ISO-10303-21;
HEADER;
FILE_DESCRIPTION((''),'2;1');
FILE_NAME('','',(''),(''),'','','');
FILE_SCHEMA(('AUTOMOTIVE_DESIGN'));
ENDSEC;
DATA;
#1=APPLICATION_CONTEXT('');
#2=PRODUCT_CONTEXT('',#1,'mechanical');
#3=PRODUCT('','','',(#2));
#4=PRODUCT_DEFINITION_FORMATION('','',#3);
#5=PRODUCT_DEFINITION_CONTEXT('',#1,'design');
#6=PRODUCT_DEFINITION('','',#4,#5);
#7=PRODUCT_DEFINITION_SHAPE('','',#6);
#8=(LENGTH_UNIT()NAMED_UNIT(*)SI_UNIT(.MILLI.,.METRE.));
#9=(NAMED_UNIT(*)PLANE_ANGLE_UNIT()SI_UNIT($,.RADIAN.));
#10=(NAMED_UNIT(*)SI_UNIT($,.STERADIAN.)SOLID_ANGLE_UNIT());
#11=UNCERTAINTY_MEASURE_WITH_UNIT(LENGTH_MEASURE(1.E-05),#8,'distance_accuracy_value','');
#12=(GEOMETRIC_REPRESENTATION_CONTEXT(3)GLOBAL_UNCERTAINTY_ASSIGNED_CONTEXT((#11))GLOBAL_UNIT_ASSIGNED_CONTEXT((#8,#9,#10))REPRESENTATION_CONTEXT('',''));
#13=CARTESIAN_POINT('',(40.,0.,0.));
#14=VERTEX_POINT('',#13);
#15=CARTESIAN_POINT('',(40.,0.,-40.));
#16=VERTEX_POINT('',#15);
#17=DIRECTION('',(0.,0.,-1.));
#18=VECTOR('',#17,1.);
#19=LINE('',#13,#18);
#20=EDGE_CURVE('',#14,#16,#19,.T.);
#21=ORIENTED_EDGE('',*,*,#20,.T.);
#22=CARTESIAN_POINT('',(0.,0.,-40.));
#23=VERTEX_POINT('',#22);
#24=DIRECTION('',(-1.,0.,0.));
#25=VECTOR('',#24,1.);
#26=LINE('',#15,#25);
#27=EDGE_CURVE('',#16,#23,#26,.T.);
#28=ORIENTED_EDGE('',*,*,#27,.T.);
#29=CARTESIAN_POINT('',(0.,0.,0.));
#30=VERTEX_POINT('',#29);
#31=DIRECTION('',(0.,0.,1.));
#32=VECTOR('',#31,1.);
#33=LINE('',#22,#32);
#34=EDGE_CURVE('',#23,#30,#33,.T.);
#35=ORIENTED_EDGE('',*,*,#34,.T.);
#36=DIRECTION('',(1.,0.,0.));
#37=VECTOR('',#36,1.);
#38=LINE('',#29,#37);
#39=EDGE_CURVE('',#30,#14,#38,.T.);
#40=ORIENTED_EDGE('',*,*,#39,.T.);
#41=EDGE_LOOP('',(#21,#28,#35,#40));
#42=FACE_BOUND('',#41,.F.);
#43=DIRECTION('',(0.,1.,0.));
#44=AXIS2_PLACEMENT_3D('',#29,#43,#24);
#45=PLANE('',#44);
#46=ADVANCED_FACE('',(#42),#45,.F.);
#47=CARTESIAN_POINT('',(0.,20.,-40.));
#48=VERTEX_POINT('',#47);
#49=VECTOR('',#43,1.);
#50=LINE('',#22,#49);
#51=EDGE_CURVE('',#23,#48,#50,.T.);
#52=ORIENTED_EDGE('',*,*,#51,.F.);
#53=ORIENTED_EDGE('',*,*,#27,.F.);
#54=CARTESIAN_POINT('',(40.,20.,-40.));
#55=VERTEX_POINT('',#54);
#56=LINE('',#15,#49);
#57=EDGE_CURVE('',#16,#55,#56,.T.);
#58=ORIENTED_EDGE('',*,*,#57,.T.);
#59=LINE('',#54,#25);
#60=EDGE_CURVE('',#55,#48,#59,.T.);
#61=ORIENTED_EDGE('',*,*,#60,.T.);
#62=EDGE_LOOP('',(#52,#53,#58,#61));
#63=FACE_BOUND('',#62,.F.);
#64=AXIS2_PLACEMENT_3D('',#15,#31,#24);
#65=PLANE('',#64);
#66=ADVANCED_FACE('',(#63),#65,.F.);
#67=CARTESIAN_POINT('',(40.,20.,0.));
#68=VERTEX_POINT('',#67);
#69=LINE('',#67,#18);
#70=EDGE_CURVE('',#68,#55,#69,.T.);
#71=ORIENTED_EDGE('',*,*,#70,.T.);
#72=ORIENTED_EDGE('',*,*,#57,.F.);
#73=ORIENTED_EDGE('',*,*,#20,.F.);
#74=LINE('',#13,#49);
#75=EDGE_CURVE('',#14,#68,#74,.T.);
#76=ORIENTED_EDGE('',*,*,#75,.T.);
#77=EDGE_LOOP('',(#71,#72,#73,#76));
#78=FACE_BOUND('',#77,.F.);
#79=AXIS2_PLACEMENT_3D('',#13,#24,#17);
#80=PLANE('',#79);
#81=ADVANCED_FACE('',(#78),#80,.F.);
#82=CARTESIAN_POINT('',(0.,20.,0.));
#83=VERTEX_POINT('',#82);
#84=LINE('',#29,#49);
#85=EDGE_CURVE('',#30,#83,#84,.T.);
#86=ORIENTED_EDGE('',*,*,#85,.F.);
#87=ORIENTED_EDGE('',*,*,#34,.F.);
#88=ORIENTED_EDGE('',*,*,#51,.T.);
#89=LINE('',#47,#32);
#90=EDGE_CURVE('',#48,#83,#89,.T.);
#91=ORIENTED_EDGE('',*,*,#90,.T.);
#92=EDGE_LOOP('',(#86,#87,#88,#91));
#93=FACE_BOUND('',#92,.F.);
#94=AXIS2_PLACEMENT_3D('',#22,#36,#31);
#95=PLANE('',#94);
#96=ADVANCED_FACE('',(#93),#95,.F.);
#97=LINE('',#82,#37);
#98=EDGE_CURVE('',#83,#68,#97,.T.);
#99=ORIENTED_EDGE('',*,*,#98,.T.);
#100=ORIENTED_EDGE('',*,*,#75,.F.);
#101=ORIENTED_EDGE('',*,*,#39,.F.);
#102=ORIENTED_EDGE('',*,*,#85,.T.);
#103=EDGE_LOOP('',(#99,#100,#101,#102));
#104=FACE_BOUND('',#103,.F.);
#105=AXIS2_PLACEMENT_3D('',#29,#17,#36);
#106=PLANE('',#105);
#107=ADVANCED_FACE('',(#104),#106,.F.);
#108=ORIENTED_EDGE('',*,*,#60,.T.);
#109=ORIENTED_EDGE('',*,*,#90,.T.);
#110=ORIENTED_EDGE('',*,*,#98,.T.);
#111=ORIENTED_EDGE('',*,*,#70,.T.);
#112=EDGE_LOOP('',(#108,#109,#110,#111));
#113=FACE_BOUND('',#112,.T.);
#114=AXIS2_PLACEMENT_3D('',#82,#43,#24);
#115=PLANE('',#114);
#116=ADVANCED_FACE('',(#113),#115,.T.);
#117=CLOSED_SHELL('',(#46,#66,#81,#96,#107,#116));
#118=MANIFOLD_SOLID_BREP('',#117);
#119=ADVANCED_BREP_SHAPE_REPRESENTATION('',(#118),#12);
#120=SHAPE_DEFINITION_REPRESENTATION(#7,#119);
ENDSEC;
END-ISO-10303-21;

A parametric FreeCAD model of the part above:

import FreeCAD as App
import Part
import Sketcher
Q = App.Units.Quantity


def add_polygon(sketch, points):
    """Adds a closed chain of lines whose ends are joined by coincident constraints."""
    first, n = sketch.GeometryCount, len(points)
    for a, b in zip(points, points[1:] + points[:1]):
        sketch.addGeometry(Part.LineSegment(App.Vector(*a, 0), App.Vector(*b, 0)), False)
    for i in range(n):
        sketch.addConstraint(Sketcher.Constraint("Coincident", first + i, 2, first + (i + 1) % n, 1))

doc = App.newDocument("Part")
body = doc.addObject("PartDesign::Body", "Body")

# Sketch on XZ plane
sketch1 = doc.addObject("Sketcher::SketchObject", "Sketch")
body.addObject(sketch1)
sketch1.AttachmentSupport = (doc.XZ_Plane, [""])
sketch1.MapMode = "FlatFace"
add_polygon(sketch1, [(0, -40), (0, 0), (40, 0), (40, -40)])  # lines 0-3
sketch1.addConstraint(Sketcher.Constraint("Vertical", 0))
sketch1.addConstraint(Sketcher.Constraint("Horizontal", 1))
sketch1.addConstraint(Sketcher.Constraint("Vertical", 2))
sketch1.addConstraint(Sketcher.Constraint("Horizontal", 3))
sketch1.addConstraint(Sketcher.Constraint("Coincident", 0, 2, -1, 1))
sketch1.addConstraint(Sketcher.Constraint("Equal", 3, 0))
sketch1.addConstraint(Sketcher.Constraint("DistanceX", 1, 1, 1, 2, Q("40 mm")))
pad1 = doc.addObject("PartDesign::Pad", "Pad")
body.addObject(pad1)
pad1.Profile = sketch1
pad1.Length = 20
pad1.Reversed = True

doc.recompute()
